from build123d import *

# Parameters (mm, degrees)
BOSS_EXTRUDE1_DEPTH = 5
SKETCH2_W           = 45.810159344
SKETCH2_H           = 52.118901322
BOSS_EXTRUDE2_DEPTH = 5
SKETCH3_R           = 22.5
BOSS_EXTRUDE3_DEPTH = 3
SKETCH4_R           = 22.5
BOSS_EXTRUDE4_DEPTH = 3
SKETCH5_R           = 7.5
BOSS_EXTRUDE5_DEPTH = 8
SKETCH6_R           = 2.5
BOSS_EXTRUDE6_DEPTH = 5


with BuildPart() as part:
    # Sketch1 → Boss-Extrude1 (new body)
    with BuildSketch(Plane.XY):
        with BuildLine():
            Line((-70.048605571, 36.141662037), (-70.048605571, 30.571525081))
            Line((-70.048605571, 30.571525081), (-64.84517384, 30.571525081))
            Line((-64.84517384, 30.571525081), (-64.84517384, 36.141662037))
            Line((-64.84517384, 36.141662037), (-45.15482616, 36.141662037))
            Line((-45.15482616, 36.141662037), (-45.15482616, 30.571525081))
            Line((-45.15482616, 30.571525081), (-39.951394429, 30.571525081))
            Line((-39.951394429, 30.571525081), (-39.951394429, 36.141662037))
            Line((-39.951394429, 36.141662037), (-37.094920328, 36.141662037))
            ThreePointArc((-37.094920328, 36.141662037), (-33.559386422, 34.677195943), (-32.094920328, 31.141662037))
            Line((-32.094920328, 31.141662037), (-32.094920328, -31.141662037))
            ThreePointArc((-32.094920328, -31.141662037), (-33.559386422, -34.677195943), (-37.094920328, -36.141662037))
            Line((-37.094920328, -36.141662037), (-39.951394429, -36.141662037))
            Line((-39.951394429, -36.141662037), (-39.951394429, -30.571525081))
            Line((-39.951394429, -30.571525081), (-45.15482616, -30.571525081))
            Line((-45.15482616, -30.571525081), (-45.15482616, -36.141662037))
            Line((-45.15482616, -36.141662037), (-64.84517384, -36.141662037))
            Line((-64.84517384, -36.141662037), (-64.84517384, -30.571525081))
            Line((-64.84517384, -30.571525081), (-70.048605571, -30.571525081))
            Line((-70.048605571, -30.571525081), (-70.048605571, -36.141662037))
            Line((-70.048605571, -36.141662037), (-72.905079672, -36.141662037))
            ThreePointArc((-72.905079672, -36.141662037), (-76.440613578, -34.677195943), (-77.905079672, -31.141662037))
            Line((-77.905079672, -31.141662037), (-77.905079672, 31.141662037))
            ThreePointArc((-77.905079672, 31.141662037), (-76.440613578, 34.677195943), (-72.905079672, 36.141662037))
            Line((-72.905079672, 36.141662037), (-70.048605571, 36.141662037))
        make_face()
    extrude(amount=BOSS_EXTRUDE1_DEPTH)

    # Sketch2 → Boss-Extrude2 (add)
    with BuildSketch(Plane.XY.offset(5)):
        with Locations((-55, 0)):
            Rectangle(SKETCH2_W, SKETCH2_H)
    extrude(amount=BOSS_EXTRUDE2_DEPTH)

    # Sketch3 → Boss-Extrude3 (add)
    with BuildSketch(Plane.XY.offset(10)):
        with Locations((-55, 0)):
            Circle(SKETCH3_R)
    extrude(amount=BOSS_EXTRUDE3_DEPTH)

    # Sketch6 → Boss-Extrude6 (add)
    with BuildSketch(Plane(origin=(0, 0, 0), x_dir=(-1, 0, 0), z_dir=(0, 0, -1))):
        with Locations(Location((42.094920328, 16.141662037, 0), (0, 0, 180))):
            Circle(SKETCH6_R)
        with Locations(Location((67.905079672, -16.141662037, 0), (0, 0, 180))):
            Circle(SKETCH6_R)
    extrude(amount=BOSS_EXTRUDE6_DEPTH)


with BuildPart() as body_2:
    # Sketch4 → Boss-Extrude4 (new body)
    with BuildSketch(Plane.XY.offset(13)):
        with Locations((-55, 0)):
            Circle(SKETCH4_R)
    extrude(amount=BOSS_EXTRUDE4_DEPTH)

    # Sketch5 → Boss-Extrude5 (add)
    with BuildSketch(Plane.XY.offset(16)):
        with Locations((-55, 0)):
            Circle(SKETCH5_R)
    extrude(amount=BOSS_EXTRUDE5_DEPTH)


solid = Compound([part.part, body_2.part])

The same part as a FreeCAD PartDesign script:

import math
import FreeCAD as App
import Part
import Sketcher

V = App.Vector

doc = App.newDocument("Part")
body = doc.addObject("PartDesign::Body", "Body")

sketch1 = body.newObject("Sketcher::SketchObject", "Sketch")
sketch1.AttachmentSupport = (doc.getObject("XY_Plane"), [""])
sketch1.MapMode = "FlatFace"
sketch1.addGeometry([
    Part.LineSegment(V(-70, 30.6, 0), V(-70, 36.1, 0)),
    Part.LineSegment(V(-70, 36.1, 0), V(-72.9, 36.1, 0)),
    Part.ArcOfCircle(Part.Circle(V(-72.9, 31.1, 0), V(0, 0, 1), 5), math.radians(90), math.radians(180)),
    Part.LineSegment(V(-77.9, 31.1, 0), V(-77.9, -31.1, 0)),
    Part.ArcOfCircle(Part.Circle(V(-72.9, -31.1, 0), V(0, 0, 1), 5), math.radians(180), math.radians(270)),
    Part.LineSegment(V(-72.9, -36.1, 0), V(-70, -36.1, 0)),
    Part.LineSegment(V(-70, -36.1, 0), V(-70, -30.6, 0)),
    Part.LineSegment(V(-70, -30.6, 0), V(-64.8, -30.6, 0)),
    Part.LineSegment(V(-64.8, -30.6, 0), V(-64.8, -36.1, 0)),
    Part.LineSegment(V(-64.8, -36.1, 0), V(-45.2, -36.1, 0)),
    Part.LineSegment(V(-45.2, -36.1, 0), V(-45.2, -30.6, 0)),
    Part.LineSegment(V(-45.2, -30.6, 0), V(-40, -30.6, 0)),
    Part.LineSegment(V(-40, -30.6, 0), V(-40, -36.1, 0)),
    Part.LineSegment(V(-40, -36.1, 0), V(-37.1, -36.1, 0)),
    Part.ArcOfCircle(Part.Circle(V(-37.1, -31.1, 0), V(0, 0, 1), 5), math.radians(-90), math.radians(0)),
    Part.LineSegment(V(-32.1, -31.1, 0), V(-32.1, 31.1, 0)),
    Part.ArcOfCircle(Part.Circle(V(-37.1, 31.1, 0), V(0, 0, 1), 5), math.radians(0), math.radians(90)),
    Part.LineSegment(V(-37.1, 36.1, 0), V(-40, 36.1, 0)),
    Part.LineSegment(V(-40, 36.1, 0), V(-40, 30.6, 0)),
    Part.LineSegment(V(-40, 30.6, 0), V(-45.2, 30.6, 0)),
    Part.LineSegment(V(-45.2, 30.6, 0), V(-45.2, 36.1, 0)),
    Part.LineSegment(V(-45.2, 36.1, 0), V(-64.8, 36.1, 0)),
    Part.LineSegment(V(-64.8, 36.1, 0), V(-64.8, 30.6, 0)),
    Part.LineSegment(V(-64.8, 30.6, 0), V(-70, 30.6, 0)),
], False)
sketch1.addConstraint([
    Sketcher.Constraint("Coincident", 0, 2, 1, 1),
    Sketcher.Constraint("Tangent", 1, 2, 2, 1),
    Sketcher.Constraint("Tangent", 2, 2, 3, 1),
    Sketcher.Constraint("Tangent", 3, 2, 4, 1),
    Sketcher.Constraint("Tangent", 4, 2, 5, 1),
    Sketcher.Constraint("Coincident", 5, 2, 6, 1),
    Sketcher.Constraint("Coincident", 6, 2, 7, 1),
    Sketcher.Constraint("Coincident", 7, 2, 8, 1),
    Sketcher.Constraint("Coincident", 8, 2, 9, 1),
    Sketcher.Constraint("Coincident", 9, 2, 10, 1),
    Sketcher.Constraint("Coincident", 10, 2, 11, 1),
    Sketcher.Constraint("Coincident", 11, 2, 12, 1),
    Sketcher.Constraint("Coincident", 12, 2, 13, 1),
    Sketcher.Constraint("Tangent", 13, 2, 14, 1),
    Sketcher.Constraint("Tangent", 14, 2, 15, 1),
    Sketcher.Constraint("Tangent", 15, 2, 16, 1),
    Sketcher.Constraint("Tangent", 16, 2, 17, 1),
    Sketcher.Constraint("Coincident", 17, 2, 18, 1),
    Sketcher.Constraint("Coincident", 18, 2, 19, 1),
    Sketcher.Constraint("Coincident", 19, 2, 20, 1),
    Sketcher.Constraint("Coincident", 20, 2, 21, 1),
    Sketcher.Constraint("Coincident", 21, 2, 22, 1),
    Sketcher.Constraint("Coincident", 22, 2, 23, 1),
    Sketcher.Constraint("Coincident", 23, 2, 0, 1),
    Sketcher.Constraint("Vertical", 0),
    Sketcher.Constraint("Horizontal", 1),
    Sketcher.Constraint("Vertical", 3),
    Sketcher.Constraint("Horizontal", 5),
    Sketcher.Constraint("Vertical", 6),
    Sketcher.Constraint("Horizontal", 7),
    Sketcher.Constraint("Vertical", 8),
    Sketcher.Constraint("Horizontal", 9),
    Sketcher.Constraint("Vertical", 10),
    Sketcher.Constraint("Horizontal", 11),
    Sketcher.Constraint("Vertical", 12),
    Sketcher.Constraint("Horizontal", 13),
    Sketcher.Constraint("Vertical", 15),
    Sketcher.Constraint("Horizontal", 17),
    Sketcher.Constraint("Vertical", 18),
    Sketcher.Constraint("Horizontal", 19),
    Sketcher.Constraint("Vertical", 20),
    Sketcher.Constraint("Horizontal", 21),
    Sketcher.Constraint("Vertical", 22),
    Sketcher.Constraint("Horizontal", 23),
    Sketcher.Constraint("Equal", 2, 4),
    Sketcher.Constraint("Equal", 4, 14),
    Sketcher.Constraint("Equal", 14, 16),
    Sketcher.Constraint("Symmetric", 0, 2, 5, 2, -1),
    Sketcher.Constraint("Symmetric", 12, 2, 17, 2, -1),
    Sketcher.Constraint("Symmetric", 10, 2, 19, 2, -1),
    Sketcher.Constraint("Symmetric", 8, 2, 21, 2, -1),
    Sketcher.Constraint("Horizontal", 4, 3, 14, 3),
    Sketcher.Constraint("Horizontal", 5, 2, 8, 2),
    Sketcher.Constraint("Horizontal", 7, 2, 10, 2),
    Sketcher.Constraint("Horizontal", 19, 2, 22, 2),
    Sketcher.Constraint("Equal", 7, 11),
    Sketcher.Constraint("Equal", 5, 13),
    Sketcher.Constraint("Radius", 2, 5.0),
    Sketcher.Constraint("DistanceX", 7, 1, 7, 2, 5.203432),
    Sketcher.Constraint("DistanceX", 1, 2, 1, 1, 2.856474),
    Sketcher.Constraint("DistanceX", 9, 1, 9, 2, 19.690348),
    Sketcher.Constraint("DistanceY", 0, 1, 0, 2, 5.570137),
    Sketcher.Constraint("DistanceY", 3, 2, 3, 1, 62.283324),
    Sketcher.Constraint("DistanceX", 2, 3, -1, 1, 72.90508),
])
pad1 = body.newObject("PartDesign::Pad", "Pad")
pad1.Profile = sketch1
pad1.Length = 5

sketch2 = body.newObject("Sketcher::SketchObject", "Sketch001")
sketch2.AttachmentSupport = (doc.getObject("XY_Plane"), [""])
sketch2.MapMode = "FlatFace"
sketch2.AttachmentOffset = App.Placement(V(0, 0, 5), App.Rotation())
sketch2.addGeometry([
    Part.LineSegment(V(-78, 26, 0), V(-78, -26, 0)),
    Part.LineSegment(V(-78, -26, 0), V(-32, -26, 0)),
    Part.LineSegment(V(-32, -26, 0), V(-32, 26, 0)),
    Part.LineSegment(V(-32, 26, 0), V(-78, 26, 0)),
], False)
sketch2.addConstraint([
    Sketcher.Constraint("Coincident", 0, 2, 1, 1),
    Sketcher.Constraint("Coincident", 1, 2, 2, 1),
    Sketcher.Constraint("Coincident", 2, 2, 3, 1),
    Sketcher.Constraint("Coincident", 3, 2, 0, 1),
    Sketcher.Constraint("Vertical", 0),
    Sketcher.Constraint("Horizontal", 1),
    Sketcher.Constraint("Vertical", 2),
    Sketcher.Constraint("Horizontal", 3),
    Sketcher.Constraint("DistanceY", 0, 2, 0, 1, 52.118901),
    Sketcher.Constraint("DistanceX", 1, 1, 1, 2, 45.810159),
    Sketcher.Constraint("DistanceX", 0, 2, -1, 1, 77.90508),
    Sketcher.Constraint("DistanceY", 0, 2, -1, 1, 26.059451),
])
pad2 = body.newObject("PartDesign::Pad", "Pad001")
pad2.Profile = sketch2
pad2.Length = 5

sketch3 = body.newObject("Sketcher::SketchObject", "Sketch002")
sketch3.AttachmentSupport = (doc.getObject("XY_Plane"), [""])
sketch3.MapMode = "FlatFace"
sketch3.AttachmentOffset = App.Placement(V(0, 0, 10), App.Rotation())
sketch3.addGeometry(Part.Circle(V(-55, 0, 0), V(0, 0, 1), 22), False)
sketch3.addConstraint([
    Sketcher.Constraint("PointOnObject", 0, 3, -1),
    Sketcher.Constraint("Diameter", 0, 45.0),
    Sketcher.Constraint("DistanceX", 0, 3, -1, 1, 55.0),
])
pad3 = body.newObject("PartDesign::Pad", "Pad002")
pad3.Profile = sketch3
pad3.Length = 3

sketch4 = body.newObject("Sketcher::SketchObject", "Sketch003")
sketch4.AttachmentSupport = (doc.getObject("XY_Plane"), [""])
sketch4.MapMode = "FlatFace"
sketch4.addGeometry([
    Part.Circle(V(-42.1, 16.1, 0), V(0, 0, 1), 2.5),
    Part.Circle(V(-67.9, -16.1, 0), V(0, 0, 1), 2.5),
], False)
sketch4.addConstraint([
    Sketcher.Constraint("Equal", 0, 1),
    Sketcher.Constraint("Diameter", 0, 5.0),
    Sketcher.Constraint("DistanceX", 0, 3, -1, 1, 42.09492),
    Sketcher.Constraint("DistanceX", 1, 3, -1, 1, 67.90508),
    Sketcher.Constraint("DistanceY", -1, 1, 0, 3, 16.141662),
    Sketcher.Constraint("DistanceY", 1, 3, -1, 1, 16.141662),
])
pad4 = body.newObject("PartDesign::Pad", "Pad003")
pad4.Profile = sketch4
pad4.Length = 5
pad4.Reversed = True
body2 = doc.addObject("PartDesign::Body", "Body001")

sketch5 = body2.newObject("Sketcher::SketchObject", "Sketch004")
sketch5.AttachmentSupport = (doc.getObject("XY_Plane001"), [""])
sketch5.MapMode = "FlatFace"
sketch5.AttachmentOffset = App.Placement(V(0, 0, 13), App.Rotation())
sketch5.addGeometry(Part.Circle(V(-55, 0, 0), V(0, 0, 1), 22), False)
sketch5.addConstraint([
    Sketcher.Constraint("PointOnObject", 0, 3, -1),
    Sketcher.Constraint("Diameter", 0, 45.0),
    Sketcher.Constraint("DistanceX", 0, 3, -1, 1, 55.0),
])
pad5 = body2.newObject("PartDesign::Pad", "Pad004")
pad5.Profile = sketch5
pad5.Length = 3

sketch6 = body2.newObject("Sketcher::SketchObject", "Sketch005")
sketch6.AttachmentSupport = (doc.getObject("XY_Plane001"), [""])
sketch6.MapMode = "FlatFace"
sketch6.AttachmentOffset = App.Placement(V(0, 0, 16), App.Rotation())
sketch6.addGeometry(Part.Circle(V(-55, 0, 0), V(0, 0, 1), 8), False)
sketch6.addConstraint([
    Sketcher.Constraint("PointOnObject", 0, 3, -1),
    Sketcher.Constraint("Diameter", 0, 15.0),
    Sketcher.Constraint("DistanceX", 0, 3, -1, 1, 55.0),
])
pad6 = body2.newObject("PartDesign::Pad", "Pad005")
pad6.Profile = sketch6
pad6.Length = 8

doc.recompute()
